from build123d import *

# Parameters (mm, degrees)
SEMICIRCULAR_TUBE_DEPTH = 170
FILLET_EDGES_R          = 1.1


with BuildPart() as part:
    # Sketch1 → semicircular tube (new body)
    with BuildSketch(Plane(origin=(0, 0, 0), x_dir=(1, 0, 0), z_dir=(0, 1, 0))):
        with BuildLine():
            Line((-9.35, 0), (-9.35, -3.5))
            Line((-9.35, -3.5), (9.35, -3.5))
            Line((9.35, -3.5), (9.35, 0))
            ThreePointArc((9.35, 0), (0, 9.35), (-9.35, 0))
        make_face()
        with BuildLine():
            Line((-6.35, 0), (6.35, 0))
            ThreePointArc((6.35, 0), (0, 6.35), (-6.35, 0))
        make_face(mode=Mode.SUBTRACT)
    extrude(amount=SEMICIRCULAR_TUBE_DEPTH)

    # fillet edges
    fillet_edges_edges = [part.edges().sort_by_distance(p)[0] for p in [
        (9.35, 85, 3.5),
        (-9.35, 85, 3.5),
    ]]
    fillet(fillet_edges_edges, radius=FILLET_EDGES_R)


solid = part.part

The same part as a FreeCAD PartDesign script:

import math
import FreeCAD as App
import Part
import Sketcher

V = App.Vector
Q = App.Units.Quantity


def edges_at(feature, points):
    """Names of the edges that pass closest to the given points."""
    edges = feature.Shape.Edges
    near = lambda p: min(range(len(edges)), key=lambda i: edges[i].distToShape(Part.Vertex(*p))[0])
    return sorted({f"Edge{near(p) + 1}" for p in points})

doc = App.newDocument("Part")
body = doc.addObject("PartDesign::Body", "Body")

sketch1 = body.newObject("Sketcher::SketchObject", "Sketch")
sketch1.AttachmentSupport = (doc.getObject("XZ_Plane"), [""])
sketch1.MapMode = "FlatFace"
sketch1.addGeometry(Part.LineSegment(V(-9.3, 0, 0), V(-9.3, 3.5, 0)), False)
sketch1.addGeometry(Part.LineSegment(V(-9.3, 3.5, 0), V(9.3, 3.5, 0)), False)
sketch1.addGeometry(Part.LineSegment(V(9.3, 3.5, 0), V(9.3, 0, 0)), False)
sketch1.addGeometry(Part.ArcOfCircle(Part.Circle(V(0, 0, 0), V(0, 0, 1), 9.3), math.radians(180), math.radians(360)), False)
sketch1.addGeometry(Part.LineSegment(V(6.3, 0, 0), V(-6.3, 0, 0)), False)
sketch1.addGeometry(Part.ArcOfCircle(Part.Circle(V(0, 0, 0), V(0, 0, 1), 6.3), math.radians(180), math.radians(360)), False)
sketch1.addConstraint(Sketcher.Constraint("Coincident", 0, 2, 1, 1))
sketch1.addConstraint(Sketcher.Constraint("Coincident", 1, 2, 2, 1))
sketch1.addConstraint(Sketcher.Constraint("Tangent", 2, 2, 3, 2))
sketch1.addConstraint(Sketcher.Constraint("Tangent", 3, 1, 0, 1))
sketch1.addConstraint(Sketcher.Constraint("Coincident", 4, 1, 5, 2))
sketch1.addConstraint(Sketcher.Constraint("Coincident", 5, 1, 4, 2))
sketch1.addConstraint(Sketcher.Constraint("Vertical", 0))
sketch1.addConstraint(Sketcher.Constraint("Horizontal", 1))
sketch1.addConstraint(Sketcher.Constraint("Vertical", 2))
sketch1.addConstraint(Sketcher.Constraint("Horizontal", 4))
sketch1.addConstraint(Sketcher.Constraint("Coincident", 3, 3, -1, 1))
sketch1.addConstraint(Sketcher.Constraint("Coincident", 5, 3, -1, 1))
sketch1.addConstraint(Sketcher.Constraint("PointOnObject", 4, 1, -1))
sketch1.addConstraint(Sketcher.Constraint("Radius", 3, Q("9.35 mm")))
sketch1.addConstraint(Sketcher.Constraint("Radius", 5, Q("6.35 mm")))
sketch1.addConstraint(Sketcher.Constraint("DistanceY", 0, 1, 0, 2, Q("3.5 mm")))
pad1 = body.newObject("PartDesign::Pad", "Pad")
pad1.Profile = sketch1
pad1.Length = 170
pad1.Reversed = True
doc.recompute()

fillet = body.newObject("PartDesign::Fillet", "Fillet")
fillet.Base = (pad1, edges_at(pad1, [(9.35, 85, 3.5), (-9.35, 85, 3.5)]))
fillet.Radius = 1.1

doc.recompute()
